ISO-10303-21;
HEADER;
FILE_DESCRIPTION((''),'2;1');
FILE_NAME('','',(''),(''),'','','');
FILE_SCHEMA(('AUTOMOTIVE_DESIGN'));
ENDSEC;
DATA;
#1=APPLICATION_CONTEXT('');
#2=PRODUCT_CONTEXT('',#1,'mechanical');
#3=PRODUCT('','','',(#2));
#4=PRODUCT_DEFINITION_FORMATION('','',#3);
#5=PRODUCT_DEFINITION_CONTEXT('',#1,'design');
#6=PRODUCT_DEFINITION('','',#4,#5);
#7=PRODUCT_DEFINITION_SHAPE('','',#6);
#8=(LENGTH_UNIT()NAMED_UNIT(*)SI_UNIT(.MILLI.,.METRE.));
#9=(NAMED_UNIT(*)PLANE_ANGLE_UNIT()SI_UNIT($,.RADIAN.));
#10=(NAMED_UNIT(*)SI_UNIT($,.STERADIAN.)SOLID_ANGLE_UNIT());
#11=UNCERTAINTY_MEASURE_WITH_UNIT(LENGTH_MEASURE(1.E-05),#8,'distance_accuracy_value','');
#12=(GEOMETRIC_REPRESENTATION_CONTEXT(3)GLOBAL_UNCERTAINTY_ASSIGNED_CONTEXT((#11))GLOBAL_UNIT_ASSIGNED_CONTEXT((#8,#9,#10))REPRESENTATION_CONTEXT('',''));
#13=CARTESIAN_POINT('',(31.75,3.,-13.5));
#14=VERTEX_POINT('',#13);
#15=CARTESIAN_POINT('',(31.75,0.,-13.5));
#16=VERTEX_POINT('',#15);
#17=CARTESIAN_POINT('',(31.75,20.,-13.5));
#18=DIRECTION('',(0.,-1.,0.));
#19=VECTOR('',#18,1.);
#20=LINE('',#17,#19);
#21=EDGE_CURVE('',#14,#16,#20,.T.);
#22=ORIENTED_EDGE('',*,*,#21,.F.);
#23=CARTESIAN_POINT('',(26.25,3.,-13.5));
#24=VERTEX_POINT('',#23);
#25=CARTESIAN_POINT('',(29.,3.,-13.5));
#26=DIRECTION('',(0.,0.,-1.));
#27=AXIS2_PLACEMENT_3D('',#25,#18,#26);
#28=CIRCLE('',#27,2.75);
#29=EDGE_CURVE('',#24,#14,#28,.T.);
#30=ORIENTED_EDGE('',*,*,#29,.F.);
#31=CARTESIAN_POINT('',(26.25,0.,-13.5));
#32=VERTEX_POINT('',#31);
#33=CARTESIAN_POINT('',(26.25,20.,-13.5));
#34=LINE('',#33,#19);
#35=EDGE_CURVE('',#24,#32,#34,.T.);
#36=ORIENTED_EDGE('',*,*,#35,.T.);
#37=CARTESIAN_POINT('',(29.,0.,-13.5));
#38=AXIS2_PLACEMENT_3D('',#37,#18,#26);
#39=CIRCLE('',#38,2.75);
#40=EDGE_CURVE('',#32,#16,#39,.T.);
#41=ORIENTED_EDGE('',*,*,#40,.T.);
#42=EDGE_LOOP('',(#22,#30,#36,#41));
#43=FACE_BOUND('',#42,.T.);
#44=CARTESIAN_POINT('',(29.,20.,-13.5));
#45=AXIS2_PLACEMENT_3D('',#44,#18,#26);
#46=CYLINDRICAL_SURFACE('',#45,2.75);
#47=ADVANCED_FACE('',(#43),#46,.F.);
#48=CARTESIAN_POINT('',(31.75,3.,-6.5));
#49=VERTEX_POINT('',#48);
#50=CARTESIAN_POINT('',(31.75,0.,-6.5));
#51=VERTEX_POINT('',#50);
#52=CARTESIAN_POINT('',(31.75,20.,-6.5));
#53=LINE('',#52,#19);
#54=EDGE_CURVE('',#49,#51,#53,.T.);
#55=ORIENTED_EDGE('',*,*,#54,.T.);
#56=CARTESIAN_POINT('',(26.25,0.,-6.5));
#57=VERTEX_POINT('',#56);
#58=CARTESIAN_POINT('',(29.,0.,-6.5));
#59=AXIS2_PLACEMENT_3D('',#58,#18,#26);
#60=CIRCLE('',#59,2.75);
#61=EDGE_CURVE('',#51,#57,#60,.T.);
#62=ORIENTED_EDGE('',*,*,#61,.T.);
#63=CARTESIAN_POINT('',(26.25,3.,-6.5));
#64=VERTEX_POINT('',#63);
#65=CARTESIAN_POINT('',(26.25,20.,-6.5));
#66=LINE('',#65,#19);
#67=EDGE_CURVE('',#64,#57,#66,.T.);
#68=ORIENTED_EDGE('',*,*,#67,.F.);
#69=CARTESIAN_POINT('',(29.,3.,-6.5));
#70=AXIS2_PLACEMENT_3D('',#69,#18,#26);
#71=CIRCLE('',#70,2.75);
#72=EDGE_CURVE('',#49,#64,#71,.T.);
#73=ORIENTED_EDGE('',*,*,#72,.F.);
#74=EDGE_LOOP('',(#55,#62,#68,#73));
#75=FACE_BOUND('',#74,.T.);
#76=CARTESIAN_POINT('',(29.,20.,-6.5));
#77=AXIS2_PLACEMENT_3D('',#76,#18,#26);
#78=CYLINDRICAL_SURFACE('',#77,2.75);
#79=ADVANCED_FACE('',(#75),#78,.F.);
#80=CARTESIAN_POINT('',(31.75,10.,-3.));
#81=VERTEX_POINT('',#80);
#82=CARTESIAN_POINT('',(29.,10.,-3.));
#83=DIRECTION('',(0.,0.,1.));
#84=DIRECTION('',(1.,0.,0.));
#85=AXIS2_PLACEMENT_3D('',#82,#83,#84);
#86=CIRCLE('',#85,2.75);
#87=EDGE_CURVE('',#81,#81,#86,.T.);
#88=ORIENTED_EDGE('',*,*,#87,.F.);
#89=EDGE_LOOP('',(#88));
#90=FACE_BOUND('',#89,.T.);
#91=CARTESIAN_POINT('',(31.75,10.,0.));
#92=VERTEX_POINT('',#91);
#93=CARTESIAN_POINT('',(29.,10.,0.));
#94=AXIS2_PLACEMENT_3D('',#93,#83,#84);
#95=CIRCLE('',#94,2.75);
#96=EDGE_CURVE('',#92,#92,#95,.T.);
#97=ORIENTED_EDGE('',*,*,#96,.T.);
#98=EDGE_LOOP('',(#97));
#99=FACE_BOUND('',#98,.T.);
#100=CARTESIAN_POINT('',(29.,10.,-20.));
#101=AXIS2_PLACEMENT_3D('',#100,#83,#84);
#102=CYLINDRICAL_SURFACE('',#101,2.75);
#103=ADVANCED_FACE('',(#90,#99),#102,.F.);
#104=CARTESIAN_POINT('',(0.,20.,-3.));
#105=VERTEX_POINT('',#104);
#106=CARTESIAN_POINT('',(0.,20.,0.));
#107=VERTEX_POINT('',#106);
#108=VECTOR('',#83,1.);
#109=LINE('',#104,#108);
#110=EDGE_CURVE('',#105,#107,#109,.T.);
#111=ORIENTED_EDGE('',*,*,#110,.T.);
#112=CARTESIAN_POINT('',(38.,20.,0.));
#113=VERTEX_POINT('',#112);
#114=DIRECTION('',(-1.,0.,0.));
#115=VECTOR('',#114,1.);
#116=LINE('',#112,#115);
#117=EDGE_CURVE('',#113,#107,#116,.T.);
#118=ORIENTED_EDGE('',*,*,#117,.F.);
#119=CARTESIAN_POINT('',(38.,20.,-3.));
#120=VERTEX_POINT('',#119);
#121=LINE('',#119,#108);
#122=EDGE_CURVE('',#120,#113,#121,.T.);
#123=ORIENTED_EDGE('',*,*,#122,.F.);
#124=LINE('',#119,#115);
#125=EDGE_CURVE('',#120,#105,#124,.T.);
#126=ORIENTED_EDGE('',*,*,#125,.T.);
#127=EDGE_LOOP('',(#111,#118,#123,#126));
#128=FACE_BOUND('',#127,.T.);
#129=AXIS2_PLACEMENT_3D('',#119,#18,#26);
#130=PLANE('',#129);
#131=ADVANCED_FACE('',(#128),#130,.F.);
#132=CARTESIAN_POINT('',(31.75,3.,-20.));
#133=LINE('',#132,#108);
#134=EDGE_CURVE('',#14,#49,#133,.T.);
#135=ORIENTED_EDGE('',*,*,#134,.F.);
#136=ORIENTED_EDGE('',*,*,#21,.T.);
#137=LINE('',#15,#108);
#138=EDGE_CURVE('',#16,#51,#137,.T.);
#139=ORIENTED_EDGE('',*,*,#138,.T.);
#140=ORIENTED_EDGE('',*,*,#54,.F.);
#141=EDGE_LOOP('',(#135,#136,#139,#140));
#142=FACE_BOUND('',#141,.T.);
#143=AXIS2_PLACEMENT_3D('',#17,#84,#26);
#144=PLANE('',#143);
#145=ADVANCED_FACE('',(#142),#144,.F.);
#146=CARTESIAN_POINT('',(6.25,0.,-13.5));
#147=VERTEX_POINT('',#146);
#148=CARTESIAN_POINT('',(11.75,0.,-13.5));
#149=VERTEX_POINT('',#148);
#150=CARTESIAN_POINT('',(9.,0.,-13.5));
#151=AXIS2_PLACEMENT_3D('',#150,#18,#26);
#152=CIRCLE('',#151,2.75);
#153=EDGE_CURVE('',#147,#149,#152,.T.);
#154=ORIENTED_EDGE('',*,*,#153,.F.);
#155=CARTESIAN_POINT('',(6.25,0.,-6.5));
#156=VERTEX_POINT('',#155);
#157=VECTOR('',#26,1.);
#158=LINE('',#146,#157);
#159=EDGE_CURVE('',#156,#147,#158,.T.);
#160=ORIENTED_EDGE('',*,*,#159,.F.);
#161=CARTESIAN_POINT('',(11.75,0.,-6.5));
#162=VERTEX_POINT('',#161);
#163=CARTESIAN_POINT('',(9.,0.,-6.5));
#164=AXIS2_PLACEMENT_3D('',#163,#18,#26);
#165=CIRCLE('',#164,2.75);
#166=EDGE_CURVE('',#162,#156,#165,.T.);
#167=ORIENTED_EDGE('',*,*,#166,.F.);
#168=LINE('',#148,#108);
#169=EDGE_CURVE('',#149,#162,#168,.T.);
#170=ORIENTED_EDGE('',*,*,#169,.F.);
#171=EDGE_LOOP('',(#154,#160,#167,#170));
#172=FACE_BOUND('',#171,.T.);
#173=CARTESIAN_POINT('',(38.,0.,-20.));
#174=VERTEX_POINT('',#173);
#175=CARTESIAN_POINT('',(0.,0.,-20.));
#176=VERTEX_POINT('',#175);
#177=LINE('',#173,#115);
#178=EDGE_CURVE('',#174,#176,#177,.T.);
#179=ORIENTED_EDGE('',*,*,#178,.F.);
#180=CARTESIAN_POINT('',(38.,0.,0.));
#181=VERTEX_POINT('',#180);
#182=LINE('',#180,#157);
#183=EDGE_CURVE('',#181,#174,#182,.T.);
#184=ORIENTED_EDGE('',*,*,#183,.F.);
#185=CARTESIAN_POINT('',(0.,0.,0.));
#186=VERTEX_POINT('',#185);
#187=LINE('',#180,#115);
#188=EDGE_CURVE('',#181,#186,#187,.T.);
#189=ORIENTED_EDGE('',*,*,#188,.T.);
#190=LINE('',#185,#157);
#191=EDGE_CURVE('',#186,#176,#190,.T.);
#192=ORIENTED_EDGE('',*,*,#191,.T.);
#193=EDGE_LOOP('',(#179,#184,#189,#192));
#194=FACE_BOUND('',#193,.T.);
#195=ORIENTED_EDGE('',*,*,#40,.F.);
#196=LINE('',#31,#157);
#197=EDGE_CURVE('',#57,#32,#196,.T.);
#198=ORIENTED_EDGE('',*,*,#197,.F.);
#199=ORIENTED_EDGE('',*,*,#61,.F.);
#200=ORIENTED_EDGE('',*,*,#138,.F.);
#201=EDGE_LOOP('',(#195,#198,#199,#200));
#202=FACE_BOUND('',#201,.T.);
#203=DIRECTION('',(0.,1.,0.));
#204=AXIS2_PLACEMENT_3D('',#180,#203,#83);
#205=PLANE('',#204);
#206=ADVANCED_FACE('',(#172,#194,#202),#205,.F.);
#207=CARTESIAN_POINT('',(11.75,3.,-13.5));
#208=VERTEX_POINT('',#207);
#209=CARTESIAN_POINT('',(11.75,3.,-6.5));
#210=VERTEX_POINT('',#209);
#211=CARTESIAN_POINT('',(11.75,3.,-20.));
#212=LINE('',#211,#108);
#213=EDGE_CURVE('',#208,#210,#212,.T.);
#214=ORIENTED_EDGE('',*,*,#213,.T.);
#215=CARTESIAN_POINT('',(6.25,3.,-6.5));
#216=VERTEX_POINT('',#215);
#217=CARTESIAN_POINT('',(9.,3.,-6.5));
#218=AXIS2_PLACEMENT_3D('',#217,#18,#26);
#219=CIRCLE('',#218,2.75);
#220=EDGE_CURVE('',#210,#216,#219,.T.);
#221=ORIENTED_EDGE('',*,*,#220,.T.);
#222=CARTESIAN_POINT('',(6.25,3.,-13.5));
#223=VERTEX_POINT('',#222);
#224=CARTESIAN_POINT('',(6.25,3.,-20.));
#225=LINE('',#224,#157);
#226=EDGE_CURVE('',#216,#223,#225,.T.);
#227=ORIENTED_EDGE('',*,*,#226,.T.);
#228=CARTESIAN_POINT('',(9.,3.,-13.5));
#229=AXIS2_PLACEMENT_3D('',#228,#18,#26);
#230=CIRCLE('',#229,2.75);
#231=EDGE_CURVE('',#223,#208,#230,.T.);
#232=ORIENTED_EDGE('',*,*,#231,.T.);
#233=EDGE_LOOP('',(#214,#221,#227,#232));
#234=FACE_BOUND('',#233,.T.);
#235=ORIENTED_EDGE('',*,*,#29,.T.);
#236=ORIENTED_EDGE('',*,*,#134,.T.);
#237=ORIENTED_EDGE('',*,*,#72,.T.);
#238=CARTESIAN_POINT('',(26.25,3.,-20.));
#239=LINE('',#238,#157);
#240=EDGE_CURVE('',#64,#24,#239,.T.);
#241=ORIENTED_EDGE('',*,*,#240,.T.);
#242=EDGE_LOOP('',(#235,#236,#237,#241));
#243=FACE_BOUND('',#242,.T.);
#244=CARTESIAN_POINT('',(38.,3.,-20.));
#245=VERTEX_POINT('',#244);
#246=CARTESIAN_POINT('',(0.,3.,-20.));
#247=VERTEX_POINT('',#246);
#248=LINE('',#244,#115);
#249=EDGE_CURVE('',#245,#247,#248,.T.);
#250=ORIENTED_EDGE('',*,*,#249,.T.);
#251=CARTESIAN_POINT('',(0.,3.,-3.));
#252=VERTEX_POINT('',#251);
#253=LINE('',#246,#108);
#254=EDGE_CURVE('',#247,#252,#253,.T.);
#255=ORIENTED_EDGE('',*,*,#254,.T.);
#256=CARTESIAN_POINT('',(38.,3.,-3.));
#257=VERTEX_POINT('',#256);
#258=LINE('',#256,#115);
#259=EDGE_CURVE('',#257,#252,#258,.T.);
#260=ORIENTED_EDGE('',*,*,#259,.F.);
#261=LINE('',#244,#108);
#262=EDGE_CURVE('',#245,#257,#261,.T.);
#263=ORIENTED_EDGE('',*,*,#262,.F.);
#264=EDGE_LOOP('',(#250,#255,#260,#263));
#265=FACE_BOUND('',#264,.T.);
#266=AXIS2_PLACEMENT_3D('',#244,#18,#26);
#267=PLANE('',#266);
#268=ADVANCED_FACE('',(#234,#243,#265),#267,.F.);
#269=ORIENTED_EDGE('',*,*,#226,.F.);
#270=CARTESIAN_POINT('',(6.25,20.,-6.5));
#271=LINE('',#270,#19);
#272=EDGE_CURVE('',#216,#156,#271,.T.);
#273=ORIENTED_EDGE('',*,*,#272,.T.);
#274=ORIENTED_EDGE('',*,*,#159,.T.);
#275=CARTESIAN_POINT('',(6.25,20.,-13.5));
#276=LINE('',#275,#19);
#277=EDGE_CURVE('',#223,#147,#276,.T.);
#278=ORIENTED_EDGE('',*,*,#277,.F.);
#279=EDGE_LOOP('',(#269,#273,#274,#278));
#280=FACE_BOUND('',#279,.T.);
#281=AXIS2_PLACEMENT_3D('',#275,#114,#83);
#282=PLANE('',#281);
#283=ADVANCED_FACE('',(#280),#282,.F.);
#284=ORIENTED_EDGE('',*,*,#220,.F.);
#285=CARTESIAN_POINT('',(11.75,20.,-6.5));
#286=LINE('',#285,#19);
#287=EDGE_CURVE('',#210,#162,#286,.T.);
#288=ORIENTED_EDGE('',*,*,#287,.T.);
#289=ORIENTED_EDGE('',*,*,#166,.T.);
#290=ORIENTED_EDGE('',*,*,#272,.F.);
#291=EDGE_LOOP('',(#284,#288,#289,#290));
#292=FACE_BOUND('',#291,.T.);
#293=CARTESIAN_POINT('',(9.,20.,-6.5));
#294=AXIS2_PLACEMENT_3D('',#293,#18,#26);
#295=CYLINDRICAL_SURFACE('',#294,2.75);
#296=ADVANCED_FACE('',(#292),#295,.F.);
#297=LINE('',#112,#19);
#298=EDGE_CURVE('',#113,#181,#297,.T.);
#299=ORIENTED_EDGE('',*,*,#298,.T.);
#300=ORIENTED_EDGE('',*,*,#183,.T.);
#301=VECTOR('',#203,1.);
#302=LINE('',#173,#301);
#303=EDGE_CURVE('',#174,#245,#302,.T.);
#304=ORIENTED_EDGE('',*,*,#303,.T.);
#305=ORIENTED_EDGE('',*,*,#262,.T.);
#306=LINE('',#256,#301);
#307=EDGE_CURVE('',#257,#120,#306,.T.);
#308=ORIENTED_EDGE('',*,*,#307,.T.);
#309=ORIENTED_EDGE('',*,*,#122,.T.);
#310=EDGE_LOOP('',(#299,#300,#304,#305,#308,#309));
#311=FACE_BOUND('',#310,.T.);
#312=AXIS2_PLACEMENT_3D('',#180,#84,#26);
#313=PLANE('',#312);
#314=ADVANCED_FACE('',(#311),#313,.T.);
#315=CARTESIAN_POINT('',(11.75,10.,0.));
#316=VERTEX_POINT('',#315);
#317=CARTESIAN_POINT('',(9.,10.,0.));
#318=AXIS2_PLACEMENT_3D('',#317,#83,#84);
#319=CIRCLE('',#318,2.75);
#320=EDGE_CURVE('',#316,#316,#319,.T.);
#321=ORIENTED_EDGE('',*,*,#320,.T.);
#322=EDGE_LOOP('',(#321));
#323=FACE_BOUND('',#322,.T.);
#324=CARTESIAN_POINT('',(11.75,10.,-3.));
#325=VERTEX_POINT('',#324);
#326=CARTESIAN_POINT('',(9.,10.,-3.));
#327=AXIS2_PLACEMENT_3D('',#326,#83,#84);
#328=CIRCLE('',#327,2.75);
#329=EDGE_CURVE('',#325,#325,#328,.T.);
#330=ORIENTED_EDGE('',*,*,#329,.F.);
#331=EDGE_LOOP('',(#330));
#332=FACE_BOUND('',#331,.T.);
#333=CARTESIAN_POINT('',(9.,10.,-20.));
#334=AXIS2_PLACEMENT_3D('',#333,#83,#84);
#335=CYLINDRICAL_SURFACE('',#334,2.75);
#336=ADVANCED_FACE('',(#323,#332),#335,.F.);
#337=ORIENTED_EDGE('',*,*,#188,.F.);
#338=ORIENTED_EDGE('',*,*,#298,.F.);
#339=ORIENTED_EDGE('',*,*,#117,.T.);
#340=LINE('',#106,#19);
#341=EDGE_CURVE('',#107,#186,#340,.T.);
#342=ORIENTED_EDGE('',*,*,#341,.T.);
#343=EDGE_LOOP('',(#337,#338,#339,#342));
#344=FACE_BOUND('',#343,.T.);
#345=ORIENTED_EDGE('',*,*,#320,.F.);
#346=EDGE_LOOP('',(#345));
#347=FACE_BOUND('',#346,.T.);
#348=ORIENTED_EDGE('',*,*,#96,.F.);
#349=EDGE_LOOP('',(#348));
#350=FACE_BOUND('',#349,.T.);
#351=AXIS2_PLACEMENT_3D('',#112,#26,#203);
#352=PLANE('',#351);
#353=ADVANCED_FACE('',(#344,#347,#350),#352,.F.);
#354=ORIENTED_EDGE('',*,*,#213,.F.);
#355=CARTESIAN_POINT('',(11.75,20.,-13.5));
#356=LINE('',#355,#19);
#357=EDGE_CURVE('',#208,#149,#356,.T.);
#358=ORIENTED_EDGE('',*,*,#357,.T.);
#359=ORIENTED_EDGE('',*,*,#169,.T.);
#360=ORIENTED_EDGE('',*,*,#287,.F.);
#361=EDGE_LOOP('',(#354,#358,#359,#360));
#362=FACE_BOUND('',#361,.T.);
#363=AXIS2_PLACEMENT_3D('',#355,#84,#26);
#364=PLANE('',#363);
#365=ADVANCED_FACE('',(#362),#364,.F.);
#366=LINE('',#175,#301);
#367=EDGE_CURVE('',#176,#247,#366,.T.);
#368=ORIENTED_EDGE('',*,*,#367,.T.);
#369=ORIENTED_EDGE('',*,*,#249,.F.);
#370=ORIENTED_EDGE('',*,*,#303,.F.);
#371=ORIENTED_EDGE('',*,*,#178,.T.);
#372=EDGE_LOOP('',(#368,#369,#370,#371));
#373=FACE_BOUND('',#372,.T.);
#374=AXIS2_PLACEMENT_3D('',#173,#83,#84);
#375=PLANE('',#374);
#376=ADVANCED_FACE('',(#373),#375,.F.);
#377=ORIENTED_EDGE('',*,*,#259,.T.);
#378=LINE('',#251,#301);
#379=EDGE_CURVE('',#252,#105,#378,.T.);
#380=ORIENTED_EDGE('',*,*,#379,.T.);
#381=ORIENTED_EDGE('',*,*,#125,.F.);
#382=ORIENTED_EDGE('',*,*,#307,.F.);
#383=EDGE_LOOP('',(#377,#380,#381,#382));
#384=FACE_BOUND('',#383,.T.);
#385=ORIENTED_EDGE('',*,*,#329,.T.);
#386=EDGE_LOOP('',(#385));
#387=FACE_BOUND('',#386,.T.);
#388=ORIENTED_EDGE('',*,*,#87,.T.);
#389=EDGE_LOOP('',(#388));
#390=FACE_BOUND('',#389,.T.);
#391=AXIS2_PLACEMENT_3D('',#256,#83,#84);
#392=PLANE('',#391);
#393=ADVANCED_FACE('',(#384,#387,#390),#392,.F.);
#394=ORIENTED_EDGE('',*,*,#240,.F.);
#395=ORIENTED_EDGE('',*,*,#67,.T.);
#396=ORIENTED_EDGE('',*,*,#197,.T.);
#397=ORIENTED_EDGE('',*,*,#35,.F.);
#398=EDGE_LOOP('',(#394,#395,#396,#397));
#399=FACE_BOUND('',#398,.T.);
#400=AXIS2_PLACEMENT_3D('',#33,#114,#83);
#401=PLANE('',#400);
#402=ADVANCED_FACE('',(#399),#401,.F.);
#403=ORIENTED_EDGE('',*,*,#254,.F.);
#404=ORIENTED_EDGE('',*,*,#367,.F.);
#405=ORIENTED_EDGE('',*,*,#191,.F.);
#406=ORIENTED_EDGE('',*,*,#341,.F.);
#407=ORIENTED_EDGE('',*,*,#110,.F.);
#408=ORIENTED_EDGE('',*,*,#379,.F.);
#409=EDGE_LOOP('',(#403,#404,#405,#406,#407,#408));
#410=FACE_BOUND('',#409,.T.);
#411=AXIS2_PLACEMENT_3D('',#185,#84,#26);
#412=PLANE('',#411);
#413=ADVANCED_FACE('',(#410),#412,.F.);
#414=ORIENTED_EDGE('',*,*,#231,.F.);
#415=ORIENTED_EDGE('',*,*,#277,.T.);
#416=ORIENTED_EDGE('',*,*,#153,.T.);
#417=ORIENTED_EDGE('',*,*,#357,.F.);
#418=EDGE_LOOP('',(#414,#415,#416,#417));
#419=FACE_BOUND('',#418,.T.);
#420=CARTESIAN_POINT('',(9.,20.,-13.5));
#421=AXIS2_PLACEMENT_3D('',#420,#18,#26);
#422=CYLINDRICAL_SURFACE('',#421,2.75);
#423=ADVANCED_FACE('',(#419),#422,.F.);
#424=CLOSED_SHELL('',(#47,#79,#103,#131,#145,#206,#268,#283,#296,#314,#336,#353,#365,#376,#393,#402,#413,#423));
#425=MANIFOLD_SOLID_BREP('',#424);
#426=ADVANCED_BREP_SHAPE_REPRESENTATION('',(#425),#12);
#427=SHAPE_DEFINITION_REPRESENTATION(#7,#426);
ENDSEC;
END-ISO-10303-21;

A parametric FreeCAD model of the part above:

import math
import FreeCAD as App
import Part
import Sketcher

V = App.Vector
Q = App.Units.Quantity

doc = App.newDocument("Part")
params = doc.addObject("Spreadsheet::Sheet", "Params")
for row, (alias, value) in enumerate([
    ("sketch1_width", "3 mm"),
    ("sketch1_width2", "17 mm"),
    ("pad1_length", "38 mm"),
    ("sketch2_diameter", "5.5 mm"),
    ("sketch3_height", "7 mm"),
    ("sketch3_radius", "2.75 mm"),
], start=1):
    params.set(f"A{row}", alias)
    params.set(f"B{row}", "=" + value)
    params.setAlias(f"B{row}", alias)

body = doc.addObject("PartDesign::Body", "Body")

sketch1 = doc.addObject("Sketcher::SketchObject", "Sketch")
body.addObject(sketch1)
sketch1.AttachmentSupport = (doc.YZ_Plane, [""])
sketch1.MapMode = "FlatFace"
sketch1.addGeometry(Part.LineSegment(V(0, 0, 0), V(0, -20, 0)), False)
sketch1.addGeometry(Part.LineSegment(V(0, -20, 0), V(3, -20, 0)), False)
sketch1.addGeometry(Part.LineSegment(V(3, -20, 0), V(3, -3, 0)), False)
sketch1.addGeometry(Part.LineSegment(V(3, -3, 0), V(20, -3, 0)), False)
sketch1.addGeometry(Part.LineSegment(V(20, -3, 0), V(20, 0, 0)), False)
sketch1.addGeometry(Part.LineSegment(V(20, 0, 0), V(0, 0, 0)), False)
sketch1.addConstraint(Sketcher.Constraint("Coincident", 0, 2, 1, 1))
sketch1.addConstraint(Sketcher.Constraint("Coincident", 1, 2, 2, 1))
sketch1.addConstraint(Sketcher.Constraint("Coincident", 2, 2, 3, 1))
sketch1.addConstraint(Sketcher.Constraint("Coincident", 3, 2, 4, 1))
sketch1.addConstraint(Sketcher.Constraint("Coincident", 4, 2, 5, 1))
sketch1.addConstraint(Sketcher.Constraint("Coincident", 5, 2, 0, 1))
sketch1.addConstraint(Sketcher.Constraint("Vertical", 0))
sketch1.addConstraint(Sketcher.Constraint("Horizontal", 1))
sketch1.addConstraint(Sketcher.Constraint("Vertical", 2))
sketch1.addConstraint(Sketcher.Constraint("Horizontal", 3))
sketch1.addConstraint(Sketcher.Constraint("Vertical", 4))
sketch1.addConstraint(Sketcher.Constraint("Horizontal", 5))
sketch1.addConstraint(Sketcher.Constraint("Coincident", 5, 2, -1, 1))
sketch1.addConstraint(Sketcher.Constraint("Equal", 5, 0))
sketch1.addConstraint(Sketcher.Constraint("Equal", 3, 2))
sketch1.addConstraint(Sketcher.Constraint("DistanceX", 1, 1, 1, 2, Q("3 mm")))
sketch1.addConstraint(Sketcher.Constraint("DistanceX", 3, 1, 3, 2, Q("17 mm")))
sketch1.setExpression("Constraints[15]", "Params.sketch1_width")
sketch1.setExpression("Constraints[16]", "Params.sketch1_width2")
pad1 = doc.addObject("PartDesign::Pad", "Pad")
body.addObject(pad1)
pad1.Profile = sketch1
pad1.setExpression("Length", "Params.pad1_length")

sketch2 = doc.addObject("Sketcher::SketchObject", "Sketch001")
body.addObject(sketch2)
sketch2.AttachmentSupport = (doc.XY_Plane, [""])
sketch2.MapMode = "FlatFace"
sketch2.addGeometry(Part.Circle(V(9, 10, 0), V(0, 0, 1), 2.75), False)
sketch2.addGeometry(Part.Circle(V(29, 10, 0), V(0, 0, 1), 2.75), False)
sketch2.addConstraint(Sketcher.Constraint("Equal", 0, 1))
sketch2.addConstraint(Sketcher.Constraint("Horizontal", 0, 3, 1, 3))
sketch2.addConstraint(Sketcher.Constraint("Diameter", 0, Q("5.5 mm")))
sketch2.addConstraint(Sketcher.Constraint("DistanceX", -1, 1, 0, 3, Q("9 mm")))
sketch2.addConstraint(Sketcher.Constraint("DistanceY", -1, 1, 0, 3, Q("10 mm")))
sketch2.addConstraint(Sketcher.Constraint("DistanceX", -1, 1, 1, 3, Q("29 mm")))
sketch2.setExpression("Constraints[2]", "Params.sketch2_diameter")
pocket1 = doc.addObject("PartDesign::Pocket", "Pocket")
body.addObject(pocket1)
pocket1.Profile = sketch2
pocket1.Type = "ThroughAll"

sketch3 = doc.addObject("Sketcher::SketchObject", "Sketch002")
body.addObject(sketch3)
sketch3.AttachmentSupport = (doc.XZ_Plane, [""])
sketch3.MapMode = "FlatFace"
sketch3.addGeometry(Part.LineSegment(V(6.25, -6.5, 0), V(6.25, -13.5, 0)), False)
sketch3.addGeometry(Part.ArcOfCircle(Part.Circle(V(9, -13.5, 0), V(0, 0, 1), 2.75), math.radians(180), math.radians(360)), False)
sketch3.addGeometry(Part.LineSegment(V(11.75, -13.5, 0), V(11.75, -6.5, 0)), False)
sketch3.addGeometry(Part.ArcOfCircle(Part.Circle(V(9, -6.5, 0), V(0, 0, 1), 2.75), math.radians(0), math.radians(180)), False)
sketch3.addGeometry(Part.LineSegment(V(26.25, -6.5, 0), V(26.25, -13.5, 0)), False)
sketch3.addGeometry(Part.ArcOfCircle(Part.Circle(V(29, -13.5, 0), V(0, 0, 1), 2.75), math.radians(180), math.radians(360)), False)
sketch3.addGeometry(Part.LineSegment(V(31.75, -13.5, 0), V(31.75, -6.5, 0)), False)
sketch3.addGeometry(Part.ArcOfCircle(Part.Circle(V(29, -6.5, 0), V(0, 0, 1), 2.75), math.radians(0), math.radians(180)), False)
sketch3.addConstraint(Sketcher.Constraint("Tangent", 0, 2, 1, 1))
sketch3.addConstraint(Sketcher.Constraint("Tangent", 1, 2, 2, 1))
sketch3.addConstraint(Sketcher.Constraint("Tangent", 2, 2, 3, 1))
sketch3.addConstraint(Sketcher.Constraint("Tangent", 3, 2, 0, 1))
sketch3.addConstraint(Sketcher.Constraint("Tangent", 4, 2, 5, 1))
sketch3.addConstraint(Sketcher.Constraint("Tangent", 5, 2, 6, 1))
sketch3.addConstraint(Sketcher.Constraint("Tangent", 6, 2, 7, 1))
sketch3.addConstraint(Sketcher.Constraint("Tangent", 7, 2, 4, 1))
sketch3.addConstraint(Sketcher.Constraint("Vertical", 0))
sketch3.addConstraint(Sketcher.Constraint("Vertical", 2))
sketch3.addConstraint(Sketcher.Constraint("Vertical", 4))
sketch3.addConstraint(Sketcher.Constraint("Vertical", 6))
sketch3.addConstraint(Sketcher.Constraint("Equal", 3, 5))
sketch3.addConstraint(Sketcher.Constraint("Horizontal", 1, 3, 5, 3))
sketch3.addConstraint(Sketcher.Constraint("Horizontal", 3, 3, 7, 3))
sketch3.addConstraint(Sketcher.Constraint("DistanceY", 0, 2, 0, 1, Q("7 mm")))
sketch3.addConstraint(Sketcher.Constraint("Radius", 1, Q("2.75 mm")))
sketch3.addConstraint(Sketcher.Constraint("DistanceX", -1, 1, 1, 3, Q("9 mm")))
sketch3.addConstraint(Sketcher.Constraint("DistanceX", -1, 1, 5, 3, Q("29 mm")))
sketch3.addConstraint(Sketcher.Constraint("DistanceY", 1, 3, -1, 1, Q("13.5 mm")))
sketch3.setExpression("Constraints[15]", "Params.sketch3_height")
sketch3.setExpression("Constraints[16]", "Params.sketch3_radius")
pocket2 = doc.addObject("PartDesign::Pocket", "Pocket001")
body.addObject(pocket2)
pocket2.Profile = sketch3
pocket2.Type = "ThroughAll"

doc.recompute()
